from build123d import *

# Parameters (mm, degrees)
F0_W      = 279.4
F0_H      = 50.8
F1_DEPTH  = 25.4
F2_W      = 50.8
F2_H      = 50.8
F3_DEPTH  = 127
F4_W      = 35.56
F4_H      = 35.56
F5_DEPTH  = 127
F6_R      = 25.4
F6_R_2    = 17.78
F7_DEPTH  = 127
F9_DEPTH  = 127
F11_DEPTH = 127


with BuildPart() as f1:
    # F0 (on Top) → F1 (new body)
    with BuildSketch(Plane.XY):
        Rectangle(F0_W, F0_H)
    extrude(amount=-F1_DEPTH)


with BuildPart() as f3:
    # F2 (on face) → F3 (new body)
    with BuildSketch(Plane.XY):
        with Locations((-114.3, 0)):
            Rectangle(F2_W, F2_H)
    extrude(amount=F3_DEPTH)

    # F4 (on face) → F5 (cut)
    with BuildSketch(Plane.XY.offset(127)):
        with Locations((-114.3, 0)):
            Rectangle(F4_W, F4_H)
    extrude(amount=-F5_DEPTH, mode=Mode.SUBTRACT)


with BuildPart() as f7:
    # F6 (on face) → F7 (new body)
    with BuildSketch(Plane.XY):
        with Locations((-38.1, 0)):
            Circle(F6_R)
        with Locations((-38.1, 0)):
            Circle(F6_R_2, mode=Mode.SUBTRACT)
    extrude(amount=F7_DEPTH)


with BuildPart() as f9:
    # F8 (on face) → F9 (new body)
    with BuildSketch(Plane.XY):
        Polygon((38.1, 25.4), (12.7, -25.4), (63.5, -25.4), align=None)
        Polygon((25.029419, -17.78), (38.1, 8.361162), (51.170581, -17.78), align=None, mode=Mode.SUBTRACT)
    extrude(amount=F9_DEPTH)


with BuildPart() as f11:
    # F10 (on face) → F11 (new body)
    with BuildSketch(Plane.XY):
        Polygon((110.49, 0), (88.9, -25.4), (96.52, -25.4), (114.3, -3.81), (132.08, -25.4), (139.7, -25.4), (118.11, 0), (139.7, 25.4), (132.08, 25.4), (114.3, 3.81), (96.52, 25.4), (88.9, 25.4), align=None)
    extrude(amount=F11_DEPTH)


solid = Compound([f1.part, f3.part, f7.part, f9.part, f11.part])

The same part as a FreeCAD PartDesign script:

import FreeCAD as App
import Part
import Sketcher

V = App.Vector
Q = App.Units.Quantity


def add_polygon(sketch, points):
    """Adds a closed chain of lines whose ends are joined by coincident constraints."""
    first, n = sketch.GeometryCount, len(points)
    for a, b in zip(points, points[1:] + points[:1]):
        sketch.addGeometry(Part.LineSegment(App.Vector(*a, 0), App.Vector(*b, 0)), False)
    for i in range(n):
        sketch.addConstraint(Sketcher.Constraint("Coincident", first + i, 2, first + (i + 1) % n, 1))

doc = App.newDocument("Part")
body = doc.addObject("PartDesign::Body", "Body")

sketch1 = body.newObject("Sketcher::SketchObject", "Sketch")
sketch1.AttachmentSupport = (doc.getObject("XY_Plane"), [""])
sketch1.MapMode = "FlatFace"
add_polygon(sketch1, [(-140, 25), (-140, -25), (140, -25), (140, 25)])
sketch1.addConstraint(Sketcher.Constraint("Vertical", 0))
sketch1.addConstraint(Sketcher.Constraint("Horizontal", 1))
sketch1.addConstraint(Sketcher.Constraint("Vertical", 2))
sketch1.addConstraint(Sketcher.Constraint("Horizontal", 3))
sketch1.addConstraint(Sketcher.Constraint("Symmetric", 0, 2, 2, 2, -1, 1))
sketch1.addConstraint(Sketcher.Constraint("DistanceX", 1, 1, 1, 2, Q("11 in")))
sketch1.addConstraint(Sketcher.Constraint("DistanceY", 0, 2, 0, 1, Q("2 in")))
pad1 = body.newObject("PartDesign::Pad", "Pad")
pad1.Profile = sketch1
pad1.Length = Q("1 in")
pad1.Reversed = True
body2 = doc.addObject("PartDesign::Body", "Body001")

sketch2 = body2.newObject("Sketcher::SketchObject", "Sketch001")
sketch2.AttachmentSupport = (doc.getObject("XY_Plane001"), [""])
sketch2.MapMode = "FlatFace"
add_polygon(sketch2, [(-140, 25), (-140, -25), (-89, -25), (-89, 25)])
sketch2.addConstraint(Sketcher.Constraint("Vertical", 0))
sketch2.addConstraint(Sketcher.Constraint("Horizontal", 1))
sketch2.addConstraint(Sketcher.Constraint("Vertical", 2))
sketch2.addConstraint(Sketcher.Constraint("Horizontal", 3))
sketch2.addConstraint(Sketcher.Constraint("Equal", 3, 0))
sketch2.addConstraint(Sketcher.Constraint("DistanceX", 1, 1, 1, 2, Q("2 in")))
sketch2.addConstraint(Sketcher.Constraint("DistanceY", 0, 2, -1, 1, Q("1 in")))
sketch2.addConstraint(Sketcher.Constraint("DistanceX", 0, 2, -1, 1, Q("5.5 in")))
pad2 = body2.newObject("PartDesign::Pad", "Pad001")
pad2.Profile = sketch2
pad2.Length = Q("5 in")

sketch3 = body2.newObject("Sketcher::SketchObject", "Sketch002")
sketch3.AttachmentSupport = (doc.getObject("XY_Plane001"), [""])
sketch3.MapMode = "FlatFace"
sketch3.AttachmentOffset = App.Placement(V(0, 0, 5 * 25.4), App.Rotation())
add_polygon(sketch3, [(-132, 18), (-132, -18), (-97, -18), (-97, 18)])
sketch3.addConstraint(Sketcher.Constraint("Vertical", 0))
sketch3.addConstraint(Sketcher.Constraint("Horizontal", 1))
sketch3.addConstraint(Sketcher.Constraint("Vertical", 2))
sketch3.addConstraint(Sketcher.Constraint("Horizontal", 3))
sketch3.addConstraint(Sketcher.Constraint("Equal", 3, 0))
sketch3.addConstraint(Sketcher.Constraint("DistanceX", 1, 1, 1, 2, Q("1.4 in")))
sketch3.addConstraint(Sketcher.Constraint("DistanceX", 0, 2, -1, 1, Q("5.2 in")))
sketch3.addConstraint(Sketcher.Constraint("DistanceY", 0, 2, -1, 1, Q("0.7 in")))
pocket1 = body2.newObject("PartDesign::Pocket", "Pocket")
pocket1.Profile = sketch3
pocket1.Length = Q("5 in")
body3 = doc.addObject("PartDesign::Body", "Body002")

sketch4 = body3.newObject("Sketcher::SketchObject", "Sketch003")
sketch4.AttachmentSupport = (doc.getObject("XY_Plane002"), [""])
sketch4.MapMode = "FlatFace"
sketch4.addGeometry(Part.Circle(V(-38, 0, 0), V(0, 0, 1), 25), False)
sketch4.addGeometry(Part.Circle(V(-38, 0, 0), V(0, 0, 1), 18), False)
sketch4.addConstraint(Sketcher.Constraint("Coincident", 1, 3, 0, 3))
sketch4.addConstraint(Sketcher.Constraint("PointOnObject", 0, 3, -1))
sketch4.addConstraint(Sketcher.Constraint("Diameter", 0, Q("2 in")))
sketch4.addConstraint(Sketcher.Constraint("Diameter", 1, Q("1.4 in")))
sketch4.addConstraint(Sketcher.Constraint("DistanceX", 0, 3, -1, 1, Q("1.5 in")))
pad3 = body3.newObject("PartDesign::Pad", "Pad002")
pad3.Profile = sketch4
pad3.Length = Q("5 in")
body4 = doc.addObject("PartDesign::Body", "Body003")

sketch5 = body4.newObject("Sketcher::SketchObject", "Sketch004")
sketch5.AttachmentSupport = (doc.getObject("XY_Plane003"), [""])
sketch5.MapMode = "FlatFace"
add_polygon(sketch5, [(38, 25), (13, -25), (64, -25)])
add_polygon(sketch5, [(51, -18), (25, -18), (38, 8)])
sketch5.addConstraint(Sketcher.Constraint("Horizontal", 1))
sketch5.addConstraint(Sketcher.Constraint("Horizontal", 3))
sketch5.addConstraint(Sketcher.Constraint("Parallel", 0, 4))
sketch5.addConstraint(Sketcher.Constraint("Parallel", 2, 5))
sketch5.addConstraint(Sketcher.Constraint("Vertical", 2, 2, 4, 2))
sketch5.addConstraint(Sketcher.Constraint("Equal", 0, 2))
sketch5.addConstraint(Sketcher.Constraint("DistanceX", 1, 1, 1, 2, Q("2 in")))
sketch5.addConstraint(Sketcher.Constraint("DistanceY", 0, 2, -1, 1, Q("1 in")))
sketch5.addConstraint(Sketcher.Constraint("DistanceY", -1, 1, 2, 2, Q("1 in")))
sketch5.addConstraint(Sketcher.Constraint("DistanceX", -1, 1, 0, 2, Q("0.5 in")))
sketch5.addConstraint(Sketcher.Constraint("DistanceY", 3, 2, -1, 1, Q("0.7 in")))
sketch5.addConstraint(Sketcher.Constraint("DistanceX", 3, 2, 3, 1, Q("26.141162 mm")))
pad4 = body4.newObject("PartDesign::Pad", "Pad003")
pad4.Profile = sketch5
pad4.Length = Q("5 in")
body5 = doc.addObject("PartDesign::Body", "Body004")

sketch6 = body5.newObject("Sketcher::SketchObject", "Sketch005")
sketch6.AttachmentSupport = (doc.getObject("XY_Plane004"), [""])
sketch6.MapMode = "FlatFace"
add_polygon(sketch6, [(110, 0), (89, -25), (97, -25), (114, -4), (132, -25), (140, -25), (118, 0), (140, 25), (132, 25), (114, 4), (97, 25), (89, 25)])
sketch6.addConstraint(Sketcher.Constraint("Horizontal", 1))
sketch6.addConstraint(Sketcher.Constraint("Horizontal", 4))
sketch6.addConstraint(Sketcher.Constraint("Horizontal", 7))
sketch6.addConstraint(Sketcher.Constraint("Horizontal", 10))
sketch6.addConstraint(Sketcher.Constraint("Symmetric", 4, 2, 6, 2, -1))
sketch6.addConstraint(Sketcher.Constraint("Symmetric", 2, 2, 8, 2, -1))
sketch6.addConstraint(Sketcher.Constraint("Symmetric", 1, 2, 9, 2, -1))
sketch6.addConstraint(Sketcher.Constraint("PointOnObject", 5, 2, -1))
sketch6.addConstraint(Sketcher.Constraint("PointOnObject", 11, 2, -1))
sketch6.addConstraint(Sketcher.Constraint("Parallel", 0, 6))
sketch6.addConstraint(Sketcher.Constraint("Parallel", 2, 8))
sketch6.addConstraint(Sketcher.Constraint("Parallel", 3, 9))
sketch6.addConstraint(Sketcher.Constraint("Parallel", 5, 11))
sketch6.addConstraint(Sketcher.Constraint("Horizontal", 1, 2, 3, 2))
sketch6.addConstraint(Sketcher.Constraint("Equal", 1, 4))
sketch6.addConstraint(Sketcher.Constraint("DistanceX", 1, 1, 1, 2, Q("0.3 in")))
sketch6.addConstraint(Sketcher.Constraint("DistanceY", 0, 2, -1, 1, Q("1 in")))
sketch6.addConstraint(Sketcher.Constraint("DistanceX", 0, 2, 2, 2, Q("1 in")))
sketch6.addConstraint(Sketcher.Constraint("DistanceX", -1, 1, 0, 2, Q("3.5 in")))
sketch6.addConstraint(Sketcher.Constraint("DistanceY", 2, 2, 8, 2, Q("0.3 in")))
sketch6.addConstraint(Sketcher.Constraint("DistanceX", 11, 2, 5, 2, Q("0.3 in")))
pad5 = body5.newObject("PartDesign::Pad", "Pad004")
pad5.Profile = sketch6
pad5.Length = Q("5 in")

doc.recompute()
